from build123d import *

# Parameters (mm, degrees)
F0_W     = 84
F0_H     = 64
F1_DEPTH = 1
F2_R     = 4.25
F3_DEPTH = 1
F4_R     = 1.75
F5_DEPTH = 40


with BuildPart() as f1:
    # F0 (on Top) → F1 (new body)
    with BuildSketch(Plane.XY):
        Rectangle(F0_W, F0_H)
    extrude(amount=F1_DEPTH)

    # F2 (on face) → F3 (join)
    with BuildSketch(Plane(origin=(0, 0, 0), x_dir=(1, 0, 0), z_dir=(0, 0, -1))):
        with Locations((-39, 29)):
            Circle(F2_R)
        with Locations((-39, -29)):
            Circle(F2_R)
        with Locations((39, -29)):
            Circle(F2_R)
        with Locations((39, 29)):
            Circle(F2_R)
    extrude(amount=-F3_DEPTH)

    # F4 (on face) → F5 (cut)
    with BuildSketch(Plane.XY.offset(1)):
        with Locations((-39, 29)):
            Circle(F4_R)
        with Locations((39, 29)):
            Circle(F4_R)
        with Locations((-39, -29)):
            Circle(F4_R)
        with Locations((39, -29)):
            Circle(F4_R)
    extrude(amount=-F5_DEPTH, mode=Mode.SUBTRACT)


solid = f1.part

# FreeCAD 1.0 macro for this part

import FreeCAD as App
import Part
import Sketcher
from FreeCAD import Vector

doc = App.newDocument("Part")
body = doc.addObject("PartDesign::Body", "Body")

sketch1 = body.newObject("Sketcher::SketchObject", "Sketch")
sketch1.AttachmentSupport = (doc.getObject("XY_Plane"), [""])
sketch1.MapMode = "FlatFace"
sketch1.addGeometry(Part.LineSegment(Vector(-42, 32, 0), Vector(-42, -32, 0)), False)
sketch1.addGeometry(Part.LineSegment(Vector(-42, -32, 0), Vector(42, -32, 0)), False)
sketch1.addGeometry(Part.LineSegment(Vector(42, -32, 0), Vector(42, 32, 0)), False)
sketch1.addGeometry(Part.LineSegment(Vector(42, 32, 0), Vector(-42, 32, 0)), False)
sketch1.addConstraint(Sketcher.Constraint("Coincident", 0, 2, 1, 1))
sketch1.addConstraint(Sketcher.Constraint("Coincident", 1, 2, 2, 1))
sketch1.addConstraint(Sketcher.Constraint("Coincident", 2, 2, 3, 1))
sketch1.addConstraint(Sketcher.Constraint("Coincident", 3, 2, 0, 1))
sketch1.addConstraint(Sketcher.Constraint("Vertical", 0))
sketch1.addConstraint(Sketcher.Constraint("Horizontal", 1))
sketch1.addConstraint(Sketcher.Constraint("Vertical", 2))
sketch1.addConstraint(Sketcher.Constraint("Horizontal", 3))
sketch1.addConstraint(Sketcher.Constraint("Symmetric", 0, 2, 2, 2, -1, 1))
sketch1.addConstraint(Sketcher.Constraint("DistanceX", 1, 1, 1, 2, 84.0))
sketch1.addConstraint(Sketcher.Constraint("DistanceY", 0, 2, 0, 1, 64.0))
pad1 = body.newObject("PartDesign::Pad", "Pad")
pad1.Profile = sketch1
pad1.Length = 1

sketch2 = body.newObject("Sketcher::SketchObject", "Sketch001")
sketch2.AttachmentSupport = (doc.getObject("XY_Plane"), [""])
sketch2.MapMode = "FlatFace"
sketch2.addGeometry(Part.Circle(Vector(-39, -29, 0), Vector(0, 0, 1), 4.25), False)
sketch2.addGeometry(Part.Circle(Vector(-39, 29, 0), Vector(0, 0, 1), 4.25), False)
sketch2.addGeometry(Part.Circle(Vector(39, 29, 0), Vector(0, 0, 1), 4.25), False)
sketch2.addGeometry(Part.Circle(Vector(39, -29, 0), Vector(0, 0, 1), 4.25), False)
sketch2.addConstraint(Sketcher.Constraint("Equal", 0, 1))
sketch2.addConstraint(Sketcher.Constraint("Equal", 1, 2))
sketch2.addConstraint(Sketcher.Constraint("Equal", 2, 3))
sketch2.addConstraint(Sketcher.Constraint("Symmetric", 0, 3, 2, 3, -1, 1))
sketch2.addConstraint(Sketcher.Constraint("Symmetric", 1, 3, 3, 3, -1, 1))
sketch2.addConstraint(Sketcher.Constraint("Symmetric", 1, 3, 2, 3, -2))
sketch2.addConstraint(Sketcher.Constraint("Diameter", 0, 8.5))
sketch2.addConstraint(Sketcher.Constraint("DistanceX", 0, 3, -1, 1, 39.0))
sketch2.addConstraint(Sketcher.Constraint("DistanceY", 0, 3, -1, 1, 29.0))
pad2 = body.newObject("PartDesign::Pad", "Pad001")
pad2.Profile = sketch2
pad2.Length = 1

sketch3 = body.newObject("Sketcher::SketchObject", "Sketch002")
sketch3.AttachmentSupport = (doc.getObject("XY_Plane"), [""])
sketch3.MapMode = "FlatFace"
sketch3.AttachmentOffset = App.Placement(Vector(0, 0, 1), App.Rotation())
sketch3.addGeometry(Part.Circle(Vector(-39, 29, 0), Vector(0, 0, 1), 1.75), False)
sketch3.addGeometry(Part.Circle(Vector(39, 29, 0), Vector(0, 0, 1), 1.75), False)
sketch3.addGeometry(Part.Circle(Vector(-39, -29, 0), Vector(0, 0, 1), 1.75), False)
sketch3.addGeometry(Part.Circle(Vector(39, -29, 0), Vector(0, 0, 1), 1.75), False)
sketch3.addConstraint(Sketcher.Constraint("Equal", 0, 1))
sketch3.addConstraint(Sketcher.Constraint("Equal", 1, 2))
sketch3.addConstraint(Sketcher.Constraint("Equal", 2, 3))
sketch3.addConstraint(Sketcher.Constraint("Symmetric", 1, 3, 2, 3, -1, 1))
sketch3.addConstraint(Sketcher.Constraint("Symmetric", 0, 3, 3, 3, -1, 1))
sketch3.addConstraint(Sketcher.Constraint("Symmetric", 0, 3, 1, 3, -2))
sketch3.addConstraint(Sketcher.Constraint("Diameter", 0, 3.5))
sketch3.addConstraint(Sketcher.Constraint("DistanceX", 0, 3, -1, 1, 39.0))
sketch3.addConstraint(Sketcher.Constraint("DistanceY", -1, 1, 0, 3, 29.0))
pocket1 = body.newObject("PartDesign::Pocket", "Pocket")
pocket1.Profile = sketch3
pocket1.Length = 40

doc.recompute()
